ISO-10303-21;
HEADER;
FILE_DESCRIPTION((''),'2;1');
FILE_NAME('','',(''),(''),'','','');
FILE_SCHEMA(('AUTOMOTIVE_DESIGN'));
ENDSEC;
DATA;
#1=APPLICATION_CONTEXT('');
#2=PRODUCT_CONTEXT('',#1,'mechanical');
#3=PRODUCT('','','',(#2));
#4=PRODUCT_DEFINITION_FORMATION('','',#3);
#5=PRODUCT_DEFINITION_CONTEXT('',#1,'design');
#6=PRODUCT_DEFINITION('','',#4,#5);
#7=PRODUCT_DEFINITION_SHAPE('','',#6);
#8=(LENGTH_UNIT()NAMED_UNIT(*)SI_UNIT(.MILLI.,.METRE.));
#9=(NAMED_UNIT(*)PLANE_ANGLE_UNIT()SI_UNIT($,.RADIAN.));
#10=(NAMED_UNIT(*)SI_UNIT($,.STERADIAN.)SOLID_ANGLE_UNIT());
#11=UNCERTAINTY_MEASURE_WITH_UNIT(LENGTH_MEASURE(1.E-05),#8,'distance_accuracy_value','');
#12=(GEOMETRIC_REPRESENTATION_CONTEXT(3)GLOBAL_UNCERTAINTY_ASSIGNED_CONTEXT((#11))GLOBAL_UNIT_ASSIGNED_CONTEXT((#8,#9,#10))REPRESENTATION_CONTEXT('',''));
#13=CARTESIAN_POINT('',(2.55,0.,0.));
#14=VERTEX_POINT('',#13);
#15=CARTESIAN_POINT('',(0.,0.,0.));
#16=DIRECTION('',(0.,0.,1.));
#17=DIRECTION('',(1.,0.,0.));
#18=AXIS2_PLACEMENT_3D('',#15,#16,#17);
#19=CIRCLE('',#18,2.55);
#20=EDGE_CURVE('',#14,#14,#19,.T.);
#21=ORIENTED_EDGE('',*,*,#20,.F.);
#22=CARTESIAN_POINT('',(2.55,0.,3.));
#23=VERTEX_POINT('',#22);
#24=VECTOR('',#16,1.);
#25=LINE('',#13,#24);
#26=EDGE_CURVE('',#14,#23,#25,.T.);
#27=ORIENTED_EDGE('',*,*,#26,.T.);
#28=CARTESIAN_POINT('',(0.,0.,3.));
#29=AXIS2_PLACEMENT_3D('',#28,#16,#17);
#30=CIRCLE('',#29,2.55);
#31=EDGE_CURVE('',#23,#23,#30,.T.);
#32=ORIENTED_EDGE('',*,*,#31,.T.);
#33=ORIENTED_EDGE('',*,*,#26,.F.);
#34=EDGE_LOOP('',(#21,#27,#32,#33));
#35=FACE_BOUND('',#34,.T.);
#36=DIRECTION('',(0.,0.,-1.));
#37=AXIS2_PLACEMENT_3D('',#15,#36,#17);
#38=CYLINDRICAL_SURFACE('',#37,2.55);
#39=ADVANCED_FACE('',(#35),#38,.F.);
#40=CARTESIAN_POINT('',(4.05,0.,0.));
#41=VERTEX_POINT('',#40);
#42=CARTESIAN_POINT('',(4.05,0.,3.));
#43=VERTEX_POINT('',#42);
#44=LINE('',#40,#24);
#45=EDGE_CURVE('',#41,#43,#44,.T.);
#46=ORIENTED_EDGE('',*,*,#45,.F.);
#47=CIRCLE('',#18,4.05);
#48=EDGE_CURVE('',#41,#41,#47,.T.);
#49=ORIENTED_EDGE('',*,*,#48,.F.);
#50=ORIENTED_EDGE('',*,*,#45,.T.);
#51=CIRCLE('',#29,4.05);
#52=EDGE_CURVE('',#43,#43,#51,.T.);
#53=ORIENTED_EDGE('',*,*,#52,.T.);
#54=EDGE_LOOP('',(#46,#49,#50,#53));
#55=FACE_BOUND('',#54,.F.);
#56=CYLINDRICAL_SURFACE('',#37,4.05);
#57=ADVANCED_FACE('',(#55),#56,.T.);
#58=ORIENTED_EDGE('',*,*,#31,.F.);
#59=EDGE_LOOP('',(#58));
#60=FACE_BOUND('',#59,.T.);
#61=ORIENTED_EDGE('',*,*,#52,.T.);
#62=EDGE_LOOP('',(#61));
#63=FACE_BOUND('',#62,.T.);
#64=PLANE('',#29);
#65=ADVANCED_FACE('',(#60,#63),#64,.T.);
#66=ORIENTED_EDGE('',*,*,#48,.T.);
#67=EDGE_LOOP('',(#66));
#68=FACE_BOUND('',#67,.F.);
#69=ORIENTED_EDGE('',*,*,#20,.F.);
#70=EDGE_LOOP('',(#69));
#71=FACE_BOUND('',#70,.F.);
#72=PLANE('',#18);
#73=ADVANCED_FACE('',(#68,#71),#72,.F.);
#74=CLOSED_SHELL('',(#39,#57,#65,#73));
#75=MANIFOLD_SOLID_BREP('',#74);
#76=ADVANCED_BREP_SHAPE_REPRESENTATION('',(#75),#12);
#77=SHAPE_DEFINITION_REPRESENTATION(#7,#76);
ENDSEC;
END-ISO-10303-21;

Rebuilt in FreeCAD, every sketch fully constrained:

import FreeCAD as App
import Part
import Sketcher
from FreeCAD import Vector
Q = App.Units.Quantity

doc = App.newDocument("Part")
body = doc.addObject("PartDesign::Body", "Body")

sketch1 = body.newObject("Sketcher::SketchObject", "Sketch")
sketch1.AttachmentSupport = (doc.getObject("XY_Plane"), [""])
sketch1.MapMode = "FlatFace"
sketch1.addGeometry(Part.Circle(Vector(0, 0, 0), Vector(0, 0, 1), 4), False)
sketch1.addGeometry(Part.Circle(Vector(0, 0, 0), Vector(0, 0, 1), 2.5), False)
sketch1.addConstraint(Sketcher.Constraint("Coincident", 0, 3, -1, 1))
sketch1.addConstraint(Sketcher.Constraint("Coincident", 1, 3, -1, 1))
sketch1.addConstraint(Sketcher.Constraint("Diameter", 1, Q("5.1 mm")))
sketch1.addConstraint(Sketcher.Constraint("Diameter", 0, Q("8.1 mm")))
pad1 = body.newObject("PartDesign::Pad", "Pad")
pad1.Profile = sketch1
pad1.Length = 3

doc.recompute()
